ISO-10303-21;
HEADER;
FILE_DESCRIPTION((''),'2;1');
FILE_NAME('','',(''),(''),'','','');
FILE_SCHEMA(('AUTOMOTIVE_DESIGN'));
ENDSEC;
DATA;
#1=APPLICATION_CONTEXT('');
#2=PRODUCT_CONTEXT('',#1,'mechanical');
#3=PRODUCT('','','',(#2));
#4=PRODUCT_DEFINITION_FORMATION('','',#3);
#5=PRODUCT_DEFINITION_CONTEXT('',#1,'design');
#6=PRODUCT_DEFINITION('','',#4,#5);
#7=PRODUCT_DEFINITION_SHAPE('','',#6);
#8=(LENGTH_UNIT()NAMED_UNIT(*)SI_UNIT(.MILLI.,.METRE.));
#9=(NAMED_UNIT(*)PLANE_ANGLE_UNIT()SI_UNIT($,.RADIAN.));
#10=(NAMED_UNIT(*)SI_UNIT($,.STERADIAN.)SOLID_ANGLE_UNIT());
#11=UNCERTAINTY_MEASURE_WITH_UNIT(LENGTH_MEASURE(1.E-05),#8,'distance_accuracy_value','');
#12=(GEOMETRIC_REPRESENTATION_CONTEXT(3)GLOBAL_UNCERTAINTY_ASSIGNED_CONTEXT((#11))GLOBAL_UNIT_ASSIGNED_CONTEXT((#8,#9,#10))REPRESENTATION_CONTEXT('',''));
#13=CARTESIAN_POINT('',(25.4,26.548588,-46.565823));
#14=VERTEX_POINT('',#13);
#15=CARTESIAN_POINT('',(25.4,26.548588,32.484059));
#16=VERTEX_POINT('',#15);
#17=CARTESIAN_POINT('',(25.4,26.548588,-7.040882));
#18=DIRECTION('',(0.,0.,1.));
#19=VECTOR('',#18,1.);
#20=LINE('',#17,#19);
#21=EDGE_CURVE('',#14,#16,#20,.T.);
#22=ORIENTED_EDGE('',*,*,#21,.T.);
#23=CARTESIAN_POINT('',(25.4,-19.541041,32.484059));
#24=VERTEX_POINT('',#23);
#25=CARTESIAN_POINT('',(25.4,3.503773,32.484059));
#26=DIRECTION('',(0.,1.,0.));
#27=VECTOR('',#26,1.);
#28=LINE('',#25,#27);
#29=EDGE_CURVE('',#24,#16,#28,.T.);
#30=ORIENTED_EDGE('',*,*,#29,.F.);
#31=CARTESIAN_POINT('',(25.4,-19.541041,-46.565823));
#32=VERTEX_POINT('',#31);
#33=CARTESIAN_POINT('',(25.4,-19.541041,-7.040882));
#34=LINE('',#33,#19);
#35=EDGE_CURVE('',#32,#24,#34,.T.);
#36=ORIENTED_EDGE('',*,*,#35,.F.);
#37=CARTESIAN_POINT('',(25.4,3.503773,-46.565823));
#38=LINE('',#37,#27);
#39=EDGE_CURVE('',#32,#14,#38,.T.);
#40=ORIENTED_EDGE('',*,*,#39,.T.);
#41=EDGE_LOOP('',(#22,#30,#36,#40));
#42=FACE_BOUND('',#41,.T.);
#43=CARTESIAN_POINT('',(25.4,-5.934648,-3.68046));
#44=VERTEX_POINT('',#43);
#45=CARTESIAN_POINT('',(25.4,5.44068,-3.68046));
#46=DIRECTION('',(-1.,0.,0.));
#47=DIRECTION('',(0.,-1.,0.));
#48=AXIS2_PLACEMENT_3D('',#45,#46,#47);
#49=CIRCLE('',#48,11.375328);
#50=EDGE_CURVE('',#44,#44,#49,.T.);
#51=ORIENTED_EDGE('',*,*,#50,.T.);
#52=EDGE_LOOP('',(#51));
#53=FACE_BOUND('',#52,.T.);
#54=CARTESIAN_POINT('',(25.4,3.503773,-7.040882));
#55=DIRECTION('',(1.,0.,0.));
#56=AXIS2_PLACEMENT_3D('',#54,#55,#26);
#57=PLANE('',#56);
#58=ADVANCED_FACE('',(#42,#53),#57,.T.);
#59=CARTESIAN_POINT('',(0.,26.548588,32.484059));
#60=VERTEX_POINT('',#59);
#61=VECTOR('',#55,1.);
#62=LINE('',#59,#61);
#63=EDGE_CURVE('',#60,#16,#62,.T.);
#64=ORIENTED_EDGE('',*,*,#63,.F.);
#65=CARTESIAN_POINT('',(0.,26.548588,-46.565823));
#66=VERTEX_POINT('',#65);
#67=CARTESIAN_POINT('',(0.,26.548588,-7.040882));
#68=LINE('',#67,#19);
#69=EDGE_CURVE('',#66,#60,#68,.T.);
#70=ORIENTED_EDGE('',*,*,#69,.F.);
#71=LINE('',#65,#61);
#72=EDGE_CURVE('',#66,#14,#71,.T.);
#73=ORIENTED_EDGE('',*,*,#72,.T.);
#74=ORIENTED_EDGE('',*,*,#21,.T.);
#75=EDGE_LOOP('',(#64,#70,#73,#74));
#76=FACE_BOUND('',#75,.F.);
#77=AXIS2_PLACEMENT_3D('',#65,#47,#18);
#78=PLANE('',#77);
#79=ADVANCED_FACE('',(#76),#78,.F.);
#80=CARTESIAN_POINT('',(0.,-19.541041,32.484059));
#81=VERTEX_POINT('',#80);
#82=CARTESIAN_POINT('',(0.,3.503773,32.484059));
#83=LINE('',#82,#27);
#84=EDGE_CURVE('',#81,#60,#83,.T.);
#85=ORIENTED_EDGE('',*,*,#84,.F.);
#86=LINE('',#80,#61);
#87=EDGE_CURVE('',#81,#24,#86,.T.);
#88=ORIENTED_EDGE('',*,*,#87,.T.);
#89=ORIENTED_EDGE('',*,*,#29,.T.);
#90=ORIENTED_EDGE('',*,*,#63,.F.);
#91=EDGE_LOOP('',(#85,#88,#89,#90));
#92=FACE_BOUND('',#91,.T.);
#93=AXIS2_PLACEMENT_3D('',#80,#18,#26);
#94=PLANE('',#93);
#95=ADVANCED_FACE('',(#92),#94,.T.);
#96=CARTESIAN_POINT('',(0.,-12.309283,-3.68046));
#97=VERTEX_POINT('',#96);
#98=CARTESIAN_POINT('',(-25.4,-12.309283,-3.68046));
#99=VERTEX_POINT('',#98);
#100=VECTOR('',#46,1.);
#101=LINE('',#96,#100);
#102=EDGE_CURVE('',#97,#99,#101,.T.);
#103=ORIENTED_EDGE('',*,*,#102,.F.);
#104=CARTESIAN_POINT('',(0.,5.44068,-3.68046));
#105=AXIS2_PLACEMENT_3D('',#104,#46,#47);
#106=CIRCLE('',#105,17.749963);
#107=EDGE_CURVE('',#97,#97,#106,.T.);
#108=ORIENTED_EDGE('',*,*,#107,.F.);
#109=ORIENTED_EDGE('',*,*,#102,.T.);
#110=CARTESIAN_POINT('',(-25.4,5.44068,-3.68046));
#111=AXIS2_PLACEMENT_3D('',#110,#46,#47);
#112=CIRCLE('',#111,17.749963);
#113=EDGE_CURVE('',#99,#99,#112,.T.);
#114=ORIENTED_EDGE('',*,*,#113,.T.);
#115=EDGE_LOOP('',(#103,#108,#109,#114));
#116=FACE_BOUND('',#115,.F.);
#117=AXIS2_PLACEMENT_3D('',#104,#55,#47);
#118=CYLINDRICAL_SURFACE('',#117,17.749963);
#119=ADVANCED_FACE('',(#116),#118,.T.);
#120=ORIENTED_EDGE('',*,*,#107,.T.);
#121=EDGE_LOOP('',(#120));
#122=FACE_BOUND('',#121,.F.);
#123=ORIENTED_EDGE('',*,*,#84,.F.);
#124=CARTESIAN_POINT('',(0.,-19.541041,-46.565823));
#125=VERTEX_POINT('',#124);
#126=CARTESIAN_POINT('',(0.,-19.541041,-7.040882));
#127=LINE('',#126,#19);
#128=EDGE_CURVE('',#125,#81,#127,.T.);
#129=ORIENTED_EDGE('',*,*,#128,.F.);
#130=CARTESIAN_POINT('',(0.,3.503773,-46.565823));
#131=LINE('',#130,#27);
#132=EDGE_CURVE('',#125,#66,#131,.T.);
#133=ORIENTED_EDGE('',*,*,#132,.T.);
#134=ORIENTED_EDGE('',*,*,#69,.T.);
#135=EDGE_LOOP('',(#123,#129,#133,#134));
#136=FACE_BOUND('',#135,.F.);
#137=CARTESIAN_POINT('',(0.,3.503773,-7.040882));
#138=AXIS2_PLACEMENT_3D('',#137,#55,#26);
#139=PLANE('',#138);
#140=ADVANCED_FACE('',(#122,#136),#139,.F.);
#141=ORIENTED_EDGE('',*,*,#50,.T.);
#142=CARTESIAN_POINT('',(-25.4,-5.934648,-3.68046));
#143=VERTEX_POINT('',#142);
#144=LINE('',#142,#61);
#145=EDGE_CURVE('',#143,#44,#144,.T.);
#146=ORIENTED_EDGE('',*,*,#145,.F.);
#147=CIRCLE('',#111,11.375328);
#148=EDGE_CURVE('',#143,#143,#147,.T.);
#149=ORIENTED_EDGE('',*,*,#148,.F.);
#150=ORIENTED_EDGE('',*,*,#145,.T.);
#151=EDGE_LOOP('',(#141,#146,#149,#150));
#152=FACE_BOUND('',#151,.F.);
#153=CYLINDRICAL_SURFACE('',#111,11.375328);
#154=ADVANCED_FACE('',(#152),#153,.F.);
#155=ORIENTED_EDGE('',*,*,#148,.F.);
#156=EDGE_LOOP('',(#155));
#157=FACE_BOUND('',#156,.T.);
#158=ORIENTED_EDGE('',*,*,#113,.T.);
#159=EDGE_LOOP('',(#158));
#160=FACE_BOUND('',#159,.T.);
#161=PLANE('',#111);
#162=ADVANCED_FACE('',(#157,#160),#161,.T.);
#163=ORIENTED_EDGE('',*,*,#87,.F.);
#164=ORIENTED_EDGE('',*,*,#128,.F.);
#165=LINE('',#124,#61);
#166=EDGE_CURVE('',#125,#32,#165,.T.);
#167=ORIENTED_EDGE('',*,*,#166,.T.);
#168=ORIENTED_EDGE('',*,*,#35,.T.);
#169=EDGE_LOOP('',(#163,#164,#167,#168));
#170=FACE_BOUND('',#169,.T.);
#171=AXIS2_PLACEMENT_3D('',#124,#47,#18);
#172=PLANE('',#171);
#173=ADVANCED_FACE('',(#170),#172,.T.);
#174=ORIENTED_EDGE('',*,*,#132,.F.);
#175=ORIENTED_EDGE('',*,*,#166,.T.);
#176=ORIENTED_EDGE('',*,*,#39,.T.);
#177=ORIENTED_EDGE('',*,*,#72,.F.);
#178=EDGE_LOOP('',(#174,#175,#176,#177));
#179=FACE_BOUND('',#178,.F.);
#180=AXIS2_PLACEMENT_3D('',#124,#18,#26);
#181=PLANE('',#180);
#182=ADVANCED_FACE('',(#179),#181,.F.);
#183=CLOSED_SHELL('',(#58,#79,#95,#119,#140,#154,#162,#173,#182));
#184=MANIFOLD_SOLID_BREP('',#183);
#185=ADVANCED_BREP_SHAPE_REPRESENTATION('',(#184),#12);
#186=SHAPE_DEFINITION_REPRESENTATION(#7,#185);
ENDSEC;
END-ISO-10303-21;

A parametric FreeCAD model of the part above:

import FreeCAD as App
import Part
import Sketcher

V = App.Vector
Q = App.Units.Quantity

doc = App.newDocument("Part")
params = doc.addObject("Spreadsheet::Sheet", "Params")
for row, (alias, value) in enumerate([
    ("pad1_length", "1 in"),
    ("pad2_length", "1 in"),
], start=1):
    params.set(f"A{row}", alias)
    params.set(f"B{row}", "=" + value)
    params.setAlias(f"B{row}", alias)

body = doc.addObject("PartDesign::Body", "Body")

# Sketch on YZ plane
sketch1 = body.newObject("Sketcher::SketchObject", "Sketch")
sketch1.AttachmentSupport = (doc.getObject("YZ_Plane"), [""])
sketch1.MapMode = "FlatFace"
sketch1.addGeometry(Part.LineSegment(V(-20, 32, 0), V(-20, -47, 0)), False)
sketch1.addGeometry(Part.LineSegment(V(-20, -47, 0), V(27, -47, 0)), False)
sketch1.addGeometry(Part.LineSegment(V(27, -47, 0), V(27, 32, 0)), False)
sketch1.addGeometry(Part.LineSegment(V(27, 32, 0), V(-20, 32, 0)), False)
sketch1.addConstraint(Sketcher.Constraint("Coincident", 0, 2, 1, 1))
sketch1.addConstraint(Sketcher.Constraint("Coincident", 1, 2, 2, 1))
sketch1.addConstraint(Sketcher.Constraint("Coincident", 2, 2, 3, 1))
sketch1.addConstraint(Sketcher.Constraint("Coincident", 3, 2, 0, 1))
sketch1.addConstraint(Sketcher.Constraint("Vertical", 0))
sketch1.addConstraint(Sketcher.Constraint("Horizontal", 1))
sketch1.addConstraint(Sketcher.Constraint("Vertical", 2))
sketch1.addConstraint(Sketcher.Constraint("Horizontal", 3))
sketch1.addConstraint(Sketcher.Constraint("DistanceY", 0, 2, 0, 1, Q("3.1122 in")))
sketch1.addConstraint(Sketcher.Constraint("DistanceY", 0, 2, -1, 1, Q("1.8333001 in")))
sketch1.addConstraint(Sketcher.Constraint("DistanceX", 1, 1, 1, 2, Q("46.089629 mm")))
sketch1.addConstraint(Sketcher.Constraint("DistanceX", 0, 2, -1, 1, Q("19.541041 mm")))
pad1 = body.newObject("PartDesign::Pad", "Pad")
pad1.Profile = sketch1
pad1.setExpression("Length", "Params.pad1_length")

# Sketch on YZ plane
sketch2 = body.newObject("Sketcher::SketchObject", "Sketch001")
sketch2.AttachmentSupport = (doc.getObject("YZ_Plane"), [""])
sketch2.MapMode = "FlatFace"
sketch2.addGeometry(Part.Circle(V(5, -4, 0), V(0, 0, 1), 18), False)
sketch2.addConstraint(Sketcher.Constraint("Diameter", 0, Q("35.499926 mm")))
sketch2.addConstraint(Sketcher.Constraint("DistanceX", -1, 1, 0, 3, Q("0.2142 in")))
sketch2.addConstraint(Sketcher.Constraint("DistanceY", 0, 3, -1, 1, Q("0.1449 in")))
pad2 = body.newObject("PartDesign::Pad", "Pad001")
pad2.Profile = sketch2
pad2.setExpression("Length", "Params.pad2_length")
pad2.Reversed = True

# Sketch on YZ plane
sketch3 = body.newObject("Sketcher::SketchObject", "Sketch002")
sketch3.AttachmentSupport = (doc.getObject("YZ_Plane"), [""])
sketch3.MapMode = "FlatFace"
sketch3.AttachmentOffset = App.Placement(V(0, 0, -1 * 25.4), App.Rotation())
sketch3.addGeometry(Part.Circle(V(5, -4, 0), V(0, 0, 1), 11), False)
sketch3.addConstraint(Sketcher.Constraint("Diameter", 0, Q("22.750656 mm")))
sketch3.addConstraint(Sketcher.Constraint("DistanceX", -1, 1, 0, 3, Q("0.2142 in")))
sketch3.addConstraint(Sketcher.Constraint("DistanceY", 0, 3, -1, 1, Q("0.1449 in")))
pocket1 = body.newObject("PartDesign::Pocket", "Pocket")
pocket1.Profile = sketch3
pocket1.Type = "ThroughAll"
pocket1.Reversed = True

doc.recompute()
